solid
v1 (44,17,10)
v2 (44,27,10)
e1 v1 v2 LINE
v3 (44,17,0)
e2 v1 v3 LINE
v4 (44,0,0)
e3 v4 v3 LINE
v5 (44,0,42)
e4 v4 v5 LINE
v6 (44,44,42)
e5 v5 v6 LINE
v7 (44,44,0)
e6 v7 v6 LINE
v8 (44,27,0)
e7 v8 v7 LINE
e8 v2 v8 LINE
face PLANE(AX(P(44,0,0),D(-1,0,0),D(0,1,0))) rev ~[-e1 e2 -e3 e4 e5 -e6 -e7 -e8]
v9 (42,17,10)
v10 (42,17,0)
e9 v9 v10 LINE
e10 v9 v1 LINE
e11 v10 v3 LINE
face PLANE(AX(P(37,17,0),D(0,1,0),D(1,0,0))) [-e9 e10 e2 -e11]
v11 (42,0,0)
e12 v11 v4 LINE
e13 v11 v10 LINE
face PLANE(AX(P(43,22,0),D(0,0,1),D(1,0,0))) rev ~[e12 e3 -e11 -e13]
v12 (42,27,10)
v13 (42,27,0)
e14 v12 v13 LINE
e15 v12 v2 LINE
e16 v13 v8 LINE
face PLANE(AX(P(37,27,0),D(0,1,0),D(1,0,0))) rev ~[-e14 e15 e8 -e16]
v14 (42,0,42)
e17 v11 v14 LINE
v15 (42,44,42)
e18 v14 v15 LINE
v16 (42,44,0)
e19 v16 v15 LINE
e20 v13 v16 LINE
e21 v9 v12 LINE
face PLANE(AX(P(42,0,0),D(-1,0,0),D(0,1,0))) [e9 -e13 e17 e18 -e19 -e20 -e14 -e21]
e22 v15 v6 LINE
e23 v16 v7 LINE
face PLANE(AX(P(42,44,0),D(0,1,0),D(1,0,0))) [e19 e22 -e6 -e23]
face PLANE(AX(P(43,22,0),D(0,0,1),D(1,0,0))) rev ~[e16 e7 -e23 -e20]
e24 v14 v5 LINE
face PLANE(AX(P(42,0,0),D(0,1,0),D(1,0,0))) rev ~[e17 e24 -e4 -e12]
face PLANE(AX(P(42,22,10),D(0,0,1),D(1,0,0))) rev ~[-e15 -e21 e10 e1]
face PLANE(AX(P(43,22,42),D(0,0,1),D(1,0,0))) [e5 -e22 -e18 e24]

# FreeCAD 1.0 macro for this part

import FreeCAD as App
import Part
import Sketcher
Q = App.Units.Quantity


def add_polygon(sketch, points):
    """Adds a closed chain of lines whose ends are joined by coincident constraints."""
    first, n = sketch.GeometryCount, len(points)
    for a, b in zip(points, points[1:] + points[:1]):
        sketch.addGeometry(Part.LineSegment(App.Vector(*a, 0), App.Vector(*b, 0)), False)
    for i in range(n):
        sketch.addConstraint(Sketcher.Constraint("Coincident", first + i, 2, first + (i + 1) % n, 1))

doc = App.newDocument("Part")
params = doc.addObject("Spreadsheet::Sheet", "Params")
for row, (alias, value) in enumerate([
    ("sketch1_width", "10 mm"),
    ("pad1_length", "10 mm"),
    ("sketch2_width", "2 mm"),
    ("sketch2_height", "44 mm"),
    ("pad2_length", "42 mm"),
], start=1):
    params.set(f"A{row}", alias)
    params.set(f"B{row}", "=" + value)
    params.setAlias(f"B{row}", alias)

body = doc.addObject("PartDesign::Body", "Body")

# Sketch on XY plane
sketch1 = body.newObject("Sketcher::SketchObject", "Sketch")
sketch1.AttachmentSupport = (doc.getObject("XY_Plane"), [""])
sketch1.MapMode = "FlatFace"
add_polygon(sketch1, [(37, 27), (37, 17), (47, 17), (47, 27)])  # lines 0-3
sketch1.addConstraint([
    Sketcher.Constraint("Vertical", 0),
    Sketcher.Constraint("Horizontal", 1),
    Sketcher.Constraint("Vertical", 2),
    Sketcher.Constraint("Horizontal", 3),
    Sketcher.Constraint("Equal", 3, 0),
    Sketcher.Constraint("DistanceX", 1, 1, 1, 2, Q("10 mm")),
    Sketcher.Constraint("DistanceX", -1, 1, 0, 2, Q("37 mm")),
    Sketcher.Constraint("DistanceY", -1, 1, 0, 2, Q("17 mm")),
])
sketch1.setExpression("Constraints[9]", "Params.sketch1_width")
pad1 = body.newObject("PartDesign::Pad", "Pad")
pad1.Profile = sketch1
pad1.setExpression("Length", "Params.pad1_length")
body2 = doc.addObject("PartDesign::Body", "Body001")

# Sketch on XY plane
sketch2 = body2.newObject("Sketcher::SketchObject", "Sketch001")
sketch2.AttachmentSupport = (doc.getObject("XY_Plane001"), [""])
sketch2.MapMode = "FlatFace"
add_polygon(sketch2, [(42, 44), (42, 0), (44, 0), (44, 44)])  # lines 0-3
sketch2.addConstraint([
    Sketcher.Constraint("Vertical", 0),
    Sketcher.Constraint("Horizontal", 1),
    Sketcher.Constraint("Vertical", 2),
    Sketcher.Constraint("Horizontal", 3),
    Sketcher.Constraint("PointOnObject", 0, 2, -1),
    Sketcher.Constraint("DistanceX", 1, 1, 1, 2, Q("2 mm")),
    Sketcher.Constraint("DistanceY", 0, 2, 0, 1, Q("44 mm")),
    Sketcher.Constraint("DistanceX", -1, 1, 0, 2, Q("42 mm")),
])
sketch2.setExpression("Constraints[9]", "Params.sketch2_width")
sketch2.setExpression("Constraints[10]", "Params.sketch2_height")
pad2 = body2.newObject("PartDesign::Pad", "Pad001")
pad2.Profile = sketch2
pad2.setExpression("Length", "Params.pad2_length")
doc.recompute()

boolean = body2.newObject("PartDesign::Boolean", "Boolean")
boolean.Type = "Cut"
boolean.addObjects([body])

doc.recompute()
